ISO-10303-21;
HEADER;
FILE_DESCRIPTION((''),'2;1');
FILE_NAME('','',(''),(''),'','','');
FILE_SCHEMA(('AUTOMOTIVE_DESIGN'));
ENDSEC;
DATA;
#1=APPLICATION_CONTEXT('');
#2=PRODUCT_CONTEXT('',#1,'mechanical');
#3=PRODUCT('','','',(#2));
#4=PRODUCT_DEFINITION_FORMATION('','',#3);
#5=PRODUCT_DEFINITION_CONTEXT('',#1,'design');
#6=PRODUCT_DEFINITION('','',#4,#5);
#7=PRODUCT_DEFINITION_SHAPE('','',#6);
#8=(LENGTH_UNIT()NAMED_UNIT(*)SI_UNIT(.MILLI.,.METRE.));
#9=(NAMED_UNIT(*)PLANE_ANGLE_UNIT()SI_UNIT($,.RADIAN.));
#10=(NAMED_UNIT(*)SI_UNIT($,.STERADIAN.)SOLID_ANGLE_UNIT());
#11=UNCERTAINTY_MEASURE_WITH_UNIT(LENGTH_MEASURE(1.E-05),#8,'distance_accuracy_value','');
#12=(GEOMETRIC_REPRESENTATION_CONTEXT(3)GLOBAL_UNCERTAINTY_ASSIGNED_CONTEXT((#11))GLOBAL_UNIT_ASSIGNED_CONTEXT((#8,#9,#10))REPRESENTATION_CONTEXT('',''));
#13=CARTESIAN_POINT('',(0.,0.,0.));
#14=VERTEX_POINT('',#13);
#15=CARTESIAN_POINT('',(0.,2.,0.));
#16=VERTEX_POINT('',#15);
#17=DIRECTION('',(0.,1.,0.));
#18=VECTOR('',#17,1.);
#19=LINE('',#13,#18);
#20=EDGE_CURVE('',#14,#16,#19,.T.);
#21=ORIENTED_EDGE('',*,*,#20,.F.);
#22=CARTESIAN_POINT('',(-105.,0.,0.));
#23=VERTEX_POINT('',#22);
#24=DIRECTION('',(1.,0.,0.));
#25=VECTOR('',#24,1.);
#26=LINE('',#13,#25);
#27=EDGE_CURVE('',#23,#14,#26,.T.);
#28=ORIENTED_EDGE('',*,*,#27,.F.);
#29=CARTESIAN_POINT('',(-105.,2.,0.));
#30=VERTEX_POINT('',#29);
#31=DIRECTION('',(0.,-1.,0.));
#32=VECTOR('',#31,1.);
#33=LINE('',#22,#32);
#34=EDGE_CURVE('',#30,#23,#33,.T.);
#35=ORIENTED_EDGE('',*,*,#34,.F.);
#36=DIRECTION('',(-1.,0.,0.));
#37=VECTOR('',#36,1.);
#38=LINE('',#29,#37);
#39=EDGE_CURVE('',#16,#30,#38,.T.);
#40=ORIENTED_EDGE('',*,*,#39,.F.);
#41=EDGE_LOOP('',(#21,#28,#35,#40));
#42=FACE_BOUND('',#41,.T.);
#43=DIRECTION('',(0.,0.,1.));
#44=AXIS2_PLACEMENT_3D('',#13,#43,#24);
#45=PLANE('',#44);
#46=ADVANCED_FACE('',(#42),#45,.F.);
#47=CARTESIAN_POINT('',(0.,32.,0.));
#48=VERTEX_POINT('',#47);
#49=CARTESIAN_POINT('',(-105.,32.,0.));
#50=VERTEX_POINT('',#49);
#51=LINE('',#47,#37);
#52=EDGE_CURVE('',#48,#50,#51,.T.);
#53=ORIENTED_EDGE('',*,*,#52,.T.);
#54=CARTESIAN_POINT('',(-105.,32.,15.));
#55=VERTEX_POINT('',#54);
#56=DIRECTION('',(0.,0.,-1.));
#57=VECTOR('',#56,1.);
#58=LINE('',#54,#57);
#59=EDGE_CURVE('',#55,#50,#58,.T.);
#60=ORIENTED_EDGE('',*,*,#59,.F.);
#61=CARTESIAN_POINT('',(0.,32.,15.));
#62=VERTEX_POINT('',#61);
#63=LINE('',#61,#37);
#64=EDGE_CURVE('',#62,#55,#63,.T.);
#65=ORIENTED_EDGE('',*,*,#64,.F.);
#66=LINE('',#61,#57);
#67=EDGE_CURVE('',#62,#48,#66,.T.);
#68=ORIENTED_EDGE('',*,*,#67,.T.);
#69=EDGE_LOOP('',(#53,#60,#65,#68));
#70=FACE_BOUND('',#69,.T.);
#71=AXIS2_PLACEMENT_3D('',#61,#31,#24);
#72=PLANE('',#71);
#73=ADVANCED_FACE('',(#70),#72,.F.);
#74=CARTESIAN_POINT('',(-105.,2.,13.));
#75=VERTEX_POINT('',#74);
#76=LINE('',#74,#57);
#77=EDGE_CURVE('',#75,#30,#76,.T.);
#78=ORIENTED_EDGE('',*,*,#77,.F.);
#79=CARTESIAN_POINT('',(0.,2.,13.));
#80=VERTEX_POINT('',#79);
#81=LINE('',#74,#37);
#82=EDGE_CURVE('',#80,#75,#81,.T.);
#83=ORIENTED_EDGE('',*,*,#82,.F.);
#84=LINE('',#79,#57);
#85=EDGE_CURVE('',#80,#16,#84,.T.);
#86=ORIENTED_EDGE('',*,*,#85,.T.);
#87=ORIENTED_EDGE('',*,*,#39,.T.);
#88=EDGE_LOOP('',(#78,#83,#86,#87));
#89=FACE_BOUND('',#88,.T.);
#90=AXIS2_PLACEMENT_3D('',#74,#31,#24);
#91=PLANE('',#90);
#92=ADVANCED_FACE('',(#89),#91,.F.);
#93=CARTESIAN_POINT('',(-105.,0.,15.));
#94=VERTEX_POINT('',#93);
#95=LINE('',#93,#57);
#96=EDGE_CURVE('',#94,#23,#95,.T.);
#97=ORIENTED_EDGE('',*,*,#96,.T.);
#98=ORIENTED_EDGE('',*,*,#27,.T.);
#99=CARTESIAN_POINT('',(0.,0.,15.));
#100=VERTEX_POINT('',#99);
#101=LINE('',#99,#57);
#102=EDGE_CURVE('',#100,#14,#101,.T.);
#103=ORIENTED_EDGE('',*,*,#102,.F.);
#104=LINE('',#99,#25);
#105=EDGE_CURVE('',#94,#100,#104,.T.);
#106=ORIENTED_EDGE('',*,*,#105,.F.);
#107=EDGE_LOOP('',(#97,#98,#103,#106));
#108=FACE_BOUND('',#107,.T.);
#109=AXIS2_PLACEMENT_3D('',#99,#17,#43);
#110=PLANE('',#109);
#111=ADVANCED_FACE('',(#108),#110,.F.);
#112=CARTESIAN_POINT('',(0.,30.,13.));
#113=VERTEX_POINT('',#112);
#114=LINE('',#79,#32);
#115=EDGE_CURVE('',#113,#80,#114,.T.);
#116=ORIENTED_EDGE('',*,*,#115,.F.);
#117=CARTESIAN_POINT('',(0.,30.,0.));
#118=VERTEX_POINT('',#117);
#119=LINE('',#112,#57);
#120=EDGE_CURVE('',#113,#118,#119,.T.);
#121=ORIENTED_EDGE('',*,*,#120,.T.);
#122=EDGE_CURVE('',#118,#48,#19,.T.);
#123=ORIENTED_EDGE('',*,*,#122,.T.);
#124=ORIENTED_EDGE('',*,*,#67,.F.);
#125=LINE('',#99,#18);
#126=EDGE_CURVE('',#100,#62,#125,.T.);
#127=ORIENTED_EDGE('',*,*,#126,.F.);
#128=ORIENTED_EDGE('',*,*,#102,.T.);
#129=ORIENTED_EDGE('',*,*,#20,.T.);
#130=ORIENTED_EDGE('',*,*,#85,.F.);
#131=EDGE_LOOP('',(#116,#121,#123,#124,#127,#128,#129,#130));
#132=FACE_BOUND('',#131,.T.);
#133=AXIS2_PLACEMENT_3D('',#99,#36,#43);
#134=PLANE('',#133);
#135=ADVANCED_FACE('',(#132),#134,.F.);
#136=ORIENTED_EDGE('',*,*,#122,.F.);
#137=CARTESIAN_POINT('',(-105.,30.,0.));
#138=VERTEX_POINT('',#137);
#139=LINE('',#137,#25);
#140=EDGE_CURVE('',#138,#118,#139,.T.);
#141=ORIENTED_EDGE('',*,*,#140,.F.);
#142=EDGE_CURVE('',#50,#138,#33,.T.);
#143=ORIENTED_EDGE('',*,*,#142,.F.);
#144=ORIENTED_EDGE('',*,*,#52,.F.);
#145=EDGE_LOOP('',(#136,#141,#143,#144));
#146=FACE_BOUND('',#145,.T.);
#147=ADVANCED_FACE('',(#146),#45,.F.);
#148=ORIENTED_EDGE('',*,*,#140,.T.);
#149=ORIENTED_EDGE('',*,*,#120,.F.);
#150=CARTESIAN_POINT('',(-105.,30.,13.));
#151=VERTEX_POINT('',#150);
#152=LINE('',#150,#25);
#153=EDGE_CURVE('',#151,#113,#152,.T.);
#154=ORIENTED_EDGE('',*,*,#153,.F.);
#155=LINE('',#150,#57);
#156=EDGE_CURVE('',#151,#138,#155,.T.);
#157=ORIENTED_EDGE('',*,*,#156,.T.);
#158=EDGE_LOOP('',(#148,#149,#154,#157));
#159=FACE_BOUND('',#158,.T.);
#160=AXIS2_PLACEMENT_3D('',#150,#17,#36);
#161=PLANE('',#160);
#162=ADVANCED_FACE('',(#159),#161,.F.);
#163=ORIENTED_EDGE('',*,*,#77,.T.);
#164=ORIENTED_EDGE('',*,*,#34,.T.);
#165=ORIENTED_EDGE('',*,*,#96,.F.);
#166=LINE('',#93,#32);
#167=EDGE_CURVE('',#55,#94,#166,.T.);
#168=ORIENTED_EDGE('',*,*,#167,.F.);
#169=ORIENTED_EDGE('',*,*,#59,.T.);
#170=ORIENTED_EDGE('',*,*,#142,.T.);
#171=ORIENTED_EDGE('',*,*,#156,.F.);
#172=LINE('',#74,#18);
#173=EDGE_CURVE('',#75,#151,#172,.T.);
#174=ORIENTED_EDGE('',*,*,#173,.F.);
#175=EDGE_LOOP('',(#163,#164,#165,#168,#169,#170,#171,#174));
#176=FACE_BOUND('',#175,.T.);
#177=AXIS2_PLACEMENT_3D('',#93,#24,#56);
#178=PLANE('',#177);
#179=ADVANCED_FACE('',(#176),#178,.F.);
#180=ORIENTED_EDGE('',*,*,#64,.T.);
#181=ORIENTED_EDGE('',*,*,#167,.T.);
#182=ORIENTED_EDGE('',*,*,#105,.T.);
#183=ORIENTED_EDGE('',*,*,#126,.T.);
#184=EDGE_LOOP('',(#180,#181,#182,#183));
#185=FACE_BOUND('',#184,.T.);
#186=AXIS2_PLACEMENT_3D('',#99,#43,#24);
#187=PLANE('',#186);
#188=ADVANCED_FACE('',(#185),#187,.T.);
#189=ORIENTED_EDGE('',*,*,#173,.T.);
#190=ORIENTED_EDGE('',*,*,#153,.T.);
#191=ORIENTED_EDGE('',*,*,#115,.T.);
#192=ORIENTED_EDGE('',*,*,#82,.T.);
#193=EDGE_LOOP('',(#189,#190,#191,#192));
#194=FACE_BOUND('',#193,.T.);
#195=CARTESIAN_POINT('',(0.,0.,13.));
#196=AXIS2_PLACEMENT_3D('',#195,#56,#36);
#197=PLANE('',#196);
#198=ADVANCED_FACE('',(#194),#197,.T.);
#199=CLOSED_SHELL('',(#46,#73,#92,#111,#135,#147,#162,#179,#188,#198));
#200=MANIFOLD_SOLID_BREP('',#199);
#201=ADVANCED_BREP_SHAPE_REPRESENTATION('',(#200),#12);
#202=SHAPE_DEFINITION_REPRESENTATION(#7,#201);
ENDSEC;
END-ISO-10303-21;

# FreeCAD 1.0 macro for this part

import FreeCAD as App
import Part
import Sketcher
from FreeCAD import Vector
Q = App.Units.Quantity


def add_polygon(sketch, points):
    """Adds a closed chain of lines whose ends are joined by coincident constraints."""
    first, n = sketch.GeometryCount, len(points)
    for a, b in zip(points, points[1:] + points[:1]):
        sketch.addGeometry(Part.LineSegment(App.Vector(*a, 0), App.Vector(*b, 0)), False)
    for i in range(n):
        sketch.addConstraint(Sketcher.Constraint("Coincident", first + i, 2, first + (i + 1) % n, 1))

doc = App.newDocument("Part")
body = doc.addObject("PartDesign::Body", "Body")

# Sketch on XY plane
sketch1 = body.newObject("Sketcher::SketchObject", "Sketch")
sketch1.AttachmentSupport = (doc.getObject("XY_Plane"), [""])
sketch1.MapMode = "FlatFace"
add_polygon(sketch1, [(-105, 32), (-105, 0), (0, 0), (0, 32)])  # lines 0-3
sketch1.addConstraint(Sketcher.Constraint("Vertical", 0))
sketch1.addConstraint(Sketcher.Constraint("Horizontal", 1))
sketch1.addConstraint(Sketcher.Constraint("Vertical", 2))
sketch1.addConstraint(Sketcher.Constraint("Horizontal", 3))
sketch1.addConstraint(Sketcher.Constraint("Coincident", 1, 2, -1, 1))
sketch1.addConstraint(Sketcher.Constraint("DistanceX", 1, 1, 1, 2, Q("105 mm")))
sketch1.addConstraint(Sketcher.Constraint("DistanceY", 0, 2, 0, 1, Q("32 mm")))
pad1 = body.newObject("PartDesign::Pad", "Pad")
pad1.Profile = sketch1
pad1.Length = 15

# Sketch on XY plane
sketch2 = body.newObject("Sketcher::SketchObject", "Sketch001")
sketch2.AttachmentSupport = (doc.getObject("XY_Plane"), [""])
sketch2.MapMode = "FlatFace"
add_polygon(sketch2, [(0, 30), (0, 2), (-105, 2), (-105, 30)])  # lines 0-3
sketch2.addConstraint(Sketcher.Constraint("Vertical", 0))
sketch2.addConstraint(Sketcher.Constraint("Horizontal", 1))
sketch2.addConstraint(Sketcher.Constraint("Vertical", 2))
sketch2.addConstraint(Sketcher.Constraint("Horizontal", 3))
sketch2.addConstraint(Sketcher.Constraint("PointOnObject", 0, 2, -2))
sketch2.addConstraint(Sketcher.Constraint("DistanceX", 1, 2, 1, 1, Q("105 mm")))
sketch2.addConstraint(Sketcher.Constraint("DistanceY", 0, 2, 0, 1, Q("28 mm")))
sketch2.addConstraint(Sketcher.Constraint("DistanceY", -1, 1, 0, 2, Q("2 mm")))
pocket1 = body.newObject("PartDesign::Pocket", "Pocket")
pocket1.Profile = sketch2
pocket1.Length = 13
pocket1.Reversed = True

doc.recompute()
